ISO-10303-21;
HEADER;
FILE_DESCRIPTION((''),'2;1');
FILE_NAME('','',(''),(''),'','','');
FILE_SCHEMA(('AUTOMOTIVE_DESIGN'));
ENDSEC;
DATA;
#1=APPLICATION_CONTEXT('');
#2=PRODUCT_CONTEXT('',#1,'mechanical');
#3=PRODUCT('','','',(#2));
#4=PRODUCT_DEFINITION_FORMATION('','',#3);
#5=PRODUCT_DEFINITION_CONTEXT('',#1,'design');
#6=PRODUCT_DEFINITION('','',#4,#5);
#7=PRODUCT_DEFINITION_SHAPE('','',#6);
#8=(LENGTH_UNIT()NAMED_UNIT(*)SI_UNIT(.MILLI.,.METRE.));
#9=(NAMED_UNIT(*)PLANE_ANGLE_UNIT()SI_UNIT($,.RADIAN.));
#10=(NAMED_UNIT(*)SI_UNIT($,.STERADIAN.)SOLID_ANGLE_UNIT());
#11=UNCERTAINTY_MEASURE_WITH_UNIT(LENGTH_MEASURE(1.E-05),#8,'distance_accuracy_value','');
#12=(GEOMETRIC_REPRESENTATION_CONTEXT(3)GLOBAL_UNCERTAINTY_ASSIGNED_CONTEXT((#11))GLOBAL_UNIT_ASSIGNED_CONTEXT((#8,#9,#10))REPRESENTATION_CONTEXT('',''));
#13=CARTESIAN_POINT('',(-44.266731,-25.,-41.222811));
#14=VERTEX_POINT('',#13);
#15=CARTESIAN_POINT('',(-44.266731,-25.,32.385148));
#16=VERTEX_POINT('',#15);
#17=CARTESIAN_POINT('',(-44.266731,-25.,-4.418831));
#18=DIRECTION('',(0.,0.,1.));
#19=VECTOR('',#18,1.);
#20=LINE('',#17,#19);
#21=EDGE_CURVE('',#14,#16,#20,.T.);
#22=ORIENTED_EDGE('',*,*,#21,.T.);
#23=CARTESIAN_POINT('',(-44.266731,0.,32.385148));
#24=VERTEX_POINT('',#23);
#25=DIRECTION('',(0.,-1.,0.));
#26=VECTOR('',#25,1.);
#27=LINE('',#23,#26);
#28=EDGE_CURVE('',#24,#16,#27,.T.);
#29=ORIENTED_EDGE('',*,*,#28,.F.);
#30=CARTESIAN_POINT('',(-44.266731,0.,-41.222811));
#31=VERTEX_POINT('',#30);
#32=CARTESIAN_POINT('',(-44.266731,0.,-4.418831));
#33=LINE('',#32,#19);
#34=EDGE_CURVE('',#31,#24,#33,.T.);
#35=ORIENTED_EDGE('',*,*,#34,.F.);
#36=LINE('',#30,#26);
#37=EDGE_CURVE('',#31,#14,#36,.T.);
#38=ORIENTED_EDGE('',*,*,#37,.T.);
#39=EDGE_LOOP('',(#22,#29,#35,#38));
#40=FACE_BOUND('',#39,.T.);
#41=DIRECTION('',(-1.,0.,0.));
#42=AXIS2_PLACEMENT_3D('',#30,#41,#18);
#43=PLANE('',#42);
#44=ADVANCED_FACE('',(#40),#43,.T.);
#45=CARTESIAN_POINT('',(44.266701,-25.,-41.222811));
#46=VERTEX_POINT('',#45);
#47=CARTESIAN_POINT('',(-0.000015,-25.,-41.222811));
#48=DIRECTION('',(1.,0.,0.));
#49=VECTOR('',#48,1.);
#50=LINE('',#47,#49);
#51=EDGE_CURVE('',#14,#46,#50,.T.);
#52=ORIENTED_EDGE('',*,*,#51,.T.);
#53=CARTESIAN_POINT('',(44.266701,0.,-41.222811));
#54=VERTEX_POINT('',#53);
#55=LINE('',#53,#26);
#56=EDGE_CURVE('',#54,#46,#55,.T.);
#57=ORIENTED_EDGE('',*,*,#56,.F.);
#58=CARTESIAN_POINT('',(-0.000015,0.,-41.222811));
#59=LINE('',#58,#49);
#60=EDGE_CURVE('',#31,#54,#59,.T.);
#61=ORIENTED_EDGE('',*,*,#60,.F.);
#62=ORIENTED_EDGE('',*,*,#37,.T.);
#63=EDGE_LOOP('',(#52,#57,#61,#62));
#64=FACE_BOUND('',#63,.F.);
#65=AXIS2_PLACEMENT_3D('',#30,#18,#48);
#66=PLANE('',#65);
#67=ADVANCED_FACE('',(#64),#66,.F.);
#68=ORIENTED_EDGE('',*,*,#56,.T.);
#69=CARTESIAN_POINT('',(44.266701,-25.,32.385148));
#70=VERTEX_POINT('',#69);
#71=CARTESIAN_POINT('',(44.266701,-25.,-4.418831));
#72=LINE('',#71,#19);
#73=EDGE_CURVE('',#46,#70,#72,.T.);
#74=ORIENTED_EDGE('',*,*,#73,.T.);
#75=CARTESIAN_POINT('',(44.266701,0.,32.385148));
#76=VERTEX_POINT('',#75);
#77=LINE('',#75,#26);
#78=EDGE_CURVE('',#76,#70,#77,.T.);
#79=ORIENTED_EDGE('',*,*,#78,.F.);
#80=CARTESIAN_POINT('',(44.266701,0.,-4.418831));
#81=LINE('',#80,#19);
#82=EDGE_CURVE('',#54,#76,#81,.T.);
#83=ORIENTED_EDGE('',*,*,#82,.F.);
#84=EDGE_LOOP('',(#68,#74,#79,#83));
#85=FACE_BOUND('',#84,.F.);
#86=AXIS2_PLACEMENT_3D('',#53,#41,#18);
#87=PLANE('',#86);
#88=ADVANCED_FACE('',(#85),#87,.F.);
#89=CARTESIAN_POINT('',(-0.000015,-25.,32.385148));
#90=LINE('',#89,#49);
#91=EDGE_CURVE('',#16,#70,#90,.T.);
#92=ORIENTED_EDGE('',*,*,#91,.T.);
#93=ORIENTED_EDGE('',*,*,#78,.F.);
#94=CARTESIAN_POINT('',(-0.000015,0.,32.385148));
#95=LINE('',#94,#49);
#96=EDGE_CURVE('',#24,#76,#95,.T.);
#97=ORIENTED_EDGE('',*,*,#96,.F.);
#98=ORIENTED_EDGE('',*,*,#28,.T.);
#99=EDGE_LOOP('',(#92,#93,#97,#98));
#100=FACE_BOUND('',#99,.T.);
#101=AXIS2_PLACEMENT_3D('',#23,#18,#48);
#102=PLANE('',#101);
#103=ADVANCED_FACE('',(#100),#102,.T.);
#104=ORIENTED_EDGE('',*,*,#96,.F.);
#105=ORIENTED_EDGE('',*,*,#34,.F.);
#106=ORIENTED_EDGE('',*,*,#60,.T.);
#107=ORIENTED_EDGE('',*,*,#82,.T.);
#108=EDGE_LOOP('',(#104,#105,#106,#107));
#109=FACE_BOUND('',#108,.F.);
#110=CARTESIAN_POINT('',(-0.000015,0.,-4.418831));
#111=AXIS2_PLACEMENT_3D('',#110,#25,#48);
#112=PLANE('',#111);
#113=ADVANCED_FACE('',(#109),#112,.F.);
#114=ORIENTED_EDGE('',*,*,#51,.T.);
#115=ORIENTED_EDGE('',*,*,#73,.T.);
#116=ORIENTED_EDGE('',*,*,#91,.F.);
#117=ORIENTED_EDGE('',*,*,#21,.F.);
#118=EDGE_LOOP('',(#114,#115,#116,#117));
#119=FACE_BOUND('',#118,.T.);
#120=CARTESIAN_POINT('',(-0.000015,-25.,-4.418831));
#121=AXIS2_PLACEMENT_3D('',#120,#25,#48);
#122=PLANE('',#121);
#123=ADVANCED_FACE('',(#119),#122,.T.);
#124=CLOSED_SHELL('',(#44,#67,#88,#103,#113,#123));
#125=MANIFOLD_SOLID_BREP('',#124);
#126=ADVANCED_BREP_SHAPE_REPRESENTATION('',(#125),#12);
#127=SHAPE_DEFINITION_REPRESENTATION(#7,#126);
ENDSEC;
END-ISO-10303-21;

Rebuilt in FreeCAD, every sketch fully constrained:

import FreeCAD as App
import Part
import Sketcher
from FreeCAD import Vector
Q = App.Units.Quantity


def add_polygon(sketch, points):
    """Adds a closed chain of lines whose ends are joined by coincident constraints."""
    first, n = sketch.GeometryCount, len(points)
    for a, b in zip(points, points[1:] + points[:1]):
        sketch.addGeometry(Part.LineSegment(App.Vector(*a, 0), App.Vector(*b, 0)), False)
    for i in range(n):
        sketch.addConstraint(Sketcher.Constraint("Coincident", first + i, 2, first + (i + 1) % n, 1))

doc = App.newDocument("Part")
body = doc.addObject("PartDesign::Body", "Body")

# Sketch on XZ plane
sketch1 = doc.addObject("Sketcher::SketchObject", "Sketch")
body.addObject(sketch1)
sketch1.AttachmentSupport = (doc.XZ_Plane, [""])
sketch1.MapMode = "FlatFace"
add_polygon(sketch1, [(-44, 32), (-44, -41), (44, -41), (44, 32)])  # lines 0-3
sketch1.addConstraint([
    Sketcher.Constraint("Vertical", 0),
    Sketcher.Constraint("Horizontal", 1),
    Sketcher.Constraint("Vertical", 2),
    Sketcher.Constraint("Horizontal", 3),
    Sketcher.Constraint("DistanceY", 0, 2, 0, 1, Q("73.607959 mm")),
    Sketcher.Constraint("DistanceX", -1, 1, 1, 2, Q("44.266701 mm")),
    Sketcher.Constraint("DistanceX", 1, 1, 1, 2, Q("88.533432 mm")),
    Sketcher.Constraint("DistanceY", 0, 2, -1, 1, Q("41.222811 mm")),
])
pad1 = doc.addObject("PartDesign::Pad", "Pad")
body.addObject(pad1)
pad1.Profile = sketch1
pad1.Length = 25

doc.recompute()
